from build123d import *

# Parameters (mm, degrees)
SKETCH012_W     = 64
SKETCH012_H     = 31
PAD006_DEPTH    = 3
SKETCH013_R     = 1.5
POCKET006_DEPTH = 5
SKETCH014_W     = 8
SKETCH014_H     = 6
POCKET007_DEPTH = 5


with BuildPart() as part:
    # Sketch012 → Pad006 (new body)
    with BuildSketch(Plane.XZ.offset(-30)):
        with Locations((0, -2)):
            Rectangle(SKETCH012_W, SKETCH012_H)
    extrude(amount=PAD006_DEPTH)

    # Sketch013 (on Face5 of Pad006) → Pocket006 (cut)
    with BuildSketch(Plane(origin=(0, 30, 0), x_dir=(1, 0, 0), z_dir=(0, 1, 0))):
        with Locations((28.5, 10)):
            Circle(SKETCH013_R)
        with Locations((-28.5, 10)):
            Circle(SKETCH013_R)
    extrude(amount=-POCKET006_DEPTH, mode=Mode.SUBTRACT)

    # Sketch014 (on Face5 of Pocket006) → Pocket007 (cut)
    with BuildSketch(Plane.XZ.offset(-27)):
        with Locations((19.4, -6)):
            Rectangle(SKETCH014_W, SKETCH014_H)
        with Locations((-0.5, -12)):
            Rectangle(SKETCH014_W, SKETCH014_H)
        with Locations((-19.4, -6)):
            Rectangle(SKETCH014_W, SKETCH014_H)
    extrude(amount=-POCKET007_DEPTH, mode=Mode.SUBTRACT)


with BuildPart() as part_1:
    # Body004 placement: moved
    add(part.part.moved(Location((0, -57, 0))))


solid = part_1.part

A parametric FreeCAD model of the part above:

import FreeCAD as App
import Part
import Sketcher
from FreeCAD import Vector
Q = App.Units.Quantity

doc = App.newDocument("Part")
params = doc.addObject("Spreadsheet::Sheet", "Params")
for row, (alias, value) in enumerate([
    ("sketch1_width", "64 mm"),
    ("sketch1_height", "31 mm"),
    ("pad1_length", "3 mm"),
    ("sketch2_diameter", "3 mm"),
    ("pocket1_length", "5 mm"),
    ("sketch3_width", "8 mm"),
    ("sketch3_height", "6 mm"),
    ("pocket2_length", "5 mm"),
], start=1):
    params.set(f"A{row}", alias)
    params.set(f"B{row}", "=" + value)
    params.setAlias(f"B{row}", alias)

body = doc.addObject("PartDesign::Body", "Body")

sketch1 = doc.addObject("Sketcher::SketchObject", "Sketch")
body.addObject(sketch1)
sketch1.AttachmentSupport = (doc.XZ_Plane, [""])
sketch1.MapMode = "FlatFace"
sketch1.AttachmentOffset = App.Placement(Vector(0, 0, -30), App.Rotation())
sketch1.addGeometry([
    Part.LineSegment(Vector(-32, 13.5, 0), Vector(-32, -17.5, 0)),
    Part.LineSegment(Vector(-32, -17.5, 0), Vector(32, -17.5, 0)),
    Part.LineSegment(Vector(32, -17.5, 0), Vector(32, 13.5, 0)),
    Part.LineSegment(Vector(32, 13.5, 0), Vector(-32, 13.5, 0)),
], False)
sketch1.addConstraint([
    Sketcher.Constraint("Coincident", 0, 2, 1, 1),
    Sketcher.Constraint("Coincident", 1, 2, 2, 1),
    Sketcher.Constraint("Coincident", 2, 2, 3, 1),
    Sketcher.Constraint("Coincident", 3, 2, 0, 1),
    Sketcher.Constraint("Vertical", 0),
    Sketcher.Constraint("Horizontal", 1),
    Sketcher.Constraint("Vertical", 2),
    Sketcher.Constraint("Horizontal", 3),
    Sketcher.Constraint("DistanceX", 1, 1, 1, 2, Q("64 mm")),
    Sketcher.Constraint("DistanceY", 0, 2, 0, 1, Q("31 mm")),
    Sketcher.Constraint("DistanceX", 0, 2, -1, 1, Q("32 mm")),
    Sketcher.Constraint("DistanceY", 0, 2, -1, 1, Q("17.5 mm")),
])
sketch1.setExpression("Constraints[8]", "Params.sketch1_width")
sketch1.setExpression("Constraints[9]", "Params.sketch1_height")
pad1 = doc.addObject("PartDesign::Pad", "Pad")
body.addObject(pad1)
pad1.Profile = sketch1
pad1.setExpression("Length", "Params.pad1_length")

sketch2 = doc.addObject("Sketcher::SketchObject", "Sketch001")
body.addObject(sketch2)
sketch2.AttachmentSupport = (doc.XZ_Plane, [""])
sketch2.MapMode = "FlatFace"
sketch2.AttachmentOffset = App.Placement(Vector(0, 0, -30), App.Rotation())
sketch2.addGeometry([
    Part.Circle(Vector(28.5, -10, 0), Vector(0, 0, 1), 1.5),
    Part.Circle(Vector(-28.5, -10, 0), Vector(0, 0, 1), 1.5),
], False)
sketch2.addConstraint([
    Sketcher.Constraint("Equal", 0, 1),
    Sketcher.Constraint("Symmetric", 0, 3, 1, 3, -2),
    Sketcher.Constraint("Diameter", 0, Q("3 mm")),
    Sketcher.Constraint("DistanceY", 0, 3, -1, 1, Q("10 mm")),
    Sketcher.Constraint("DistanceX", 1, 3, 0, 3, Q("57 mm")),
])
sketch2.setExpression("Constraints[2]", "Params.sketch2_diameter")
pocket1 = doc.addObject("PartDesign::Pocket", "Pocket")
body.addObject(pocket1)
pocket1.Profile = sketch2
pocket1.setExpression("Length", "Params.pocket1_length")
pocket1.Reversed = True

sketch3 = doc.addObject("Sketcher::SketchObject", "Sketch002")
body.addObject(sketch3)
sketch3.AttachmentSupport = (doc.XZ_Plane, [""])
sketch3.MapMode = "FlatFace"
sketch3.AttachmentOffset = App.Placement(Vector(0, 0, -27), App.Rotation())
sketch3.addGeometry([
    Part.LineSegment(Vector(15.4, -3, 0), Vector(15.4, -9, 0)),
    Part.LineSegment(Vector(15.4, -9, 0), Vector(23.4, -9, 0)),
    Part.LineSegment(Vector(23.4, -9, 0), Vector(23.4, -3, 0)),
    Part.LineSegment(Vector(23.4, -3, 0), Vector(15.4, -3, 0)),
    Part.LineSegment(Vector(-4.5, -9, 0), Vector(-4.5, -15, 0)),
    Part.LineSegment(Vector(-4.5, -15, 0), Vector(3.5, -15, 0)),
    Part.LineSegment(Vector(3.5, -15, 0), Vector(3.5, -9, 0)),
    Part.LineSegment(Vector(3.5, -9, 0), Vector(-4.5, -9, 0)),
    Part.LineSegment(Vector(-23.4, -3, 0), Vector(-23.4, -9, 0)),
    Part.LineSegment(Vector(-23.4, -9, 0), Vector(-15.4, -9, 0)),
    Part.LineSegment(Vector(-15.4, -9, 0), Vector(-15.4, -3, 0)),
    Part.LineSegment(Vector(-15.4, -3, 0), Vector(-23.4, -3, 0)),
], False)
sketch3.addConstraint([
    Sketcher.Constraint("Coincident", 0, 2, 1, 1),
    Sketcher.Constraint("Coincident", 1, 2, 2, 1),
    Sketcher.Constraint("Coincident", 2, 2, 3, 1),
    Sketcher.Constraint("Coincident", 3, 2, 0, 1),
    Sketcher.Constraint("Coincident", 4, 2, 5, 1),
    Sketcher.Constraint("Coincident", 5, 2, 6, 1),
    Sketcher.Constraint("Coincident", 6, 2, 7, 1),
    Sketcher.Constraint("Coincident", 7, 2, 4, 1),
    Sketcher.Constraint("Coincident", 8, 2, 9, 1),
    Sketcher.Constraint("Coincident", 9, 2, 10, 1),
    Sketcher.Constraint("Coincident", 10, 2, 11, 1),
    Sketcher.Constraint("Coincident", 11, 2, 8, 1),
    Sketcher.Constraint("Vertical", 0),
    Sketcher.Constraint("Horizontal", 1),
    Sketcher.Constraint("Vertical", 2),
    Sketcher.Constraint("Horizontal", 3),
    Sketcher.Constraint("Vertical", 4),
    Sketcher.Constraint("Horizontal", 5),
    Sketcher.Constraint("Vertical", 6),
    Sketcher.Constraint("Horizontal", 7),
    Sketcher.Constraint("Vertical", 8),
    Sketcher.Constraint("Horizontal", 9),
    Sketcher.Constraint("Vertical", 10),
    Sketcher.Constraint("Horizontal", 11),
    Sketcher.Constraint("Symmetric", 1, 2, 8, 2, -2),
    Sketcher.Constraint("Symmetric", 3, 2, 10, 2, -2),
    Sketcher.Constraint("Horizontal", 1, 2, 6, 2),
    Sketcher.Constraint("Equal", 3, 5),
    Sketcher.Constraint("Equal", 2, 4),
    Sketcher.Constraint("DistanceX", 1, 1, 1, 2, Q("8 mm")),
    Sketcher.Constraint("DistanceY", 0, 2, 0, 1, Q("6 mm")),
    Sketcher.Constraint("DistanceY", 0, 2, -1, 1, Q("9 mm")),
    Sketcher.Constraint("DistanceX", -1, 1, 0, 2, Q("15.4 mm")),
    Sketcher.Constraint("DistanceX", 4, 2, -1, 1, Q("4.5 mm")),
])
sketch3.setExpression("Constraints[29]", "Params.sketch3_width")
sketch3.setExpression("Constraints[30]", "Params.sketch3_height")
pocket2 = doc.addObject("PartDesign::Pocket", "Pocket001")
body.addObject(pocket2)
pocket2.Profile = sketch3
pocket2.setExpression("Length", "Params.pocket2_length")
body2 = doc.addObject("PartDesign::Body", "Body001")
doc.recompute()

body.Placement = App.Placement(Vector(0, -57, 0), App.Rotation(Vector(0, 0, 1), 0))
boolean = doc.addObject("PartDesign::Boolean", "Boolean")
body2.addObject(boolean)
boolean.Type = "Fuse"
boolean.addObjects([body])

doc.recompute()
